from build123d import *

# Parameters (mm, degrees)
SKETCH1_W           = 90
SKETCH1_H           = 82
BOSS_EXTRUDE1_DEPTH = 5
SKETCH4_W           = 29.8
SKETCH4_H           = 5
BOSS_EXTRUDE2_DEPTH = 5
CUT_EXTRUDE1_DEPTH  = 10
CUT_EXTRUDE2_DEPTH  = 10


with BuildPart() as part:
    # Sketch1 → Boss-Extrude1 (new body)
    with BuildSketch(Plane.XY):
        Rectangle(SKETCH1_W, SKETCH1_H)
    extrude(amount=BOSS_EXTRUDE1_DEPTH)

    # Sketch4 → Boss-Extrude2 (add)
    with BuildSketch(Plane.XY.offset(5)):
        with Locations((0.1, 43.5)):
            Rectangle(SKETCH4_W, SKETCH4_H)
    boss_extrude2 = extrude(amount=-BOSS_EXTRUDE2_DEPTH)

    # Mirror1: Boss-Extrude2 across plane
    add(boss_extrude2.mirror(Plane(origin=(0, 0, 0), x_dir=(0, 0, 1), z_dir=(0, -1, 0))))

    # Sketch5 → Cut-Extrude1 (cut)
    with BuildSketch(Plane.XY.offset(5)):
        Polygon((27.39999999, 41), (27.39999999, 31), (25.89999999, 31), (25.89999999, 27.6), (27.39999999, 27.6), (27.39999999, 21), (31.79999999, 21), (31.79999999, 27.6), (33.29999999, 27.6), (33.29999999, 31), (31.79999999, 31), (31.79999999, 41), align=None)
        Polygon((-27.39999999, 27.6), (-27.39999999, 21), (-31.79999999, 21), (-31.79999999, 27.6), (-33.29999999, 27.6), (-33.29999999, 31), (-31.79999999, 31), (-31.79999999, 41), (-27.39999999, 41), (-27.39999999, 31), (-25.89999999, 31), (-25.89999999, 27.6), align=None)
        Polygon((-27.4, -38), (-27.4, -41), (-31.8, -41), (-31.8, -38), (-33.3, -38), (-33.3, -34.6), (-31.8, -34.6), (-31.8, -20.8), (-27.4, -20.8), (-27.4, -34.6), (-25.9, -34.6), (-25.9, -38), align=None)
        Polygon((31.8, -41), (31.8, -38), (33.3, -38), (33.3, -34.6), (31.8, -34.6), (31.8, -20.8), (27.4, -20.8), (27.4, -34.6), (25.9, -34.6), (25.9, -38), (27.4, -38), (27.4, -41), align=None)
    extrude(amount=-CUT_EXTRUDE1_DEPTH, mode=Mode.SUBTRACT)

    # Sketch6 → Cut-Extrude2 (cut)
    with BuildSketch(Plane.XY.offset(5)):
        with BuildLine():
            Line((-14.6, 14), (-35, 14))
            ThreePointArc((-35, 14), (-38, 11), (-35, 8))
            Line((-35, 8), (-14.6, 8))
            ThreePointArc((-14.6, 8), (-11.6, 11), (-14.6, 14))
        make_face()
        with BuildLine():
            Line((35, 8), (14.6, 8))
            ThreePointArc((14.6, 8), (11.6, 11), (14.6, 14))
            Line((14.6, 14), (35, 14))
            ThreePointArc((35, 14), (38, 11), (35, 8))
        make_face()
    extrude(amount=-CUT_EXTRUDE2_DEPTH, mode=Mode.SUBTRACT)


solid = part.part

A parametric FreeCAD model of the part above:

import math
import FreeCAD as App
import Part
import Sketcher

V = App.Vector

doc = App.newDocument("Part")
params = doc.addObject("Spreadsheet::Sheet", "Params")
for row, (alias, value) in enumerate([
    ("sketch1_width", "90 mm"),
    ("sketch1_height", "82 mm"),
    ("pad1_length", "5 mm"),
    ("sketch2_height", "5 mm"),
    ("sketch2_width", "29.8 mm"),
    ("pad2_length", "5 mm"),
    ("sketch3_height", "10 mm"),
    ("sketch3_height2", "3 mm"),
    ("sketch3_width", "1.5 mm"),
    ("sketch3_width2", "4.4 mm"),
    ("sketch3_height3", "3.4 mm"),
    ("pocket1_length", "10 mm"),
    ("sketch4_radius", "3 mm"),
    ("sketch4_width", "20.4 mm"),
    ("pocket2_length", "10 mm"),
], start=1):
    params.set(f"A{row}", alias)
    params.set(f"B{row}", "=" + value)
    params.setAlias(f"B{row}", alias)

body = doc.addObject("PartDesign::Body", "Body")

# Sketch on XY plane
sketch1 = body.newObject("Sketcher::SketchObject", "Sketch")
sketch1.AttachmentSupport = (doc.getObject("XY_Plane"), [""])
sketch1.MapMode = "FlatFace"
sketch1.addGeometry(Part.LineSegment(V(-45, 41, 0), V(-45, -41, 0)), False)
sketch1.addGeometry(Part.LineSegment(V(-45, -41, 0), V(45, -41, 0)), False)
sketch1.addGeometry(Part.LineSegment(V(45, -41, 0), V(45, 41, 0)), False)
sketch1.addGeometry(Part.LineSegment(V(45, 41, 0), V(-45, 41, 0)), False)
sketch1.addConstraint(Sketcher.Constraint("Coincident", 0, 2, 1, 1))
sketch1.addConstraint(Sketcher.Constraint("Coincident", 1, 2, 2, 1))
sketch1.addConstraint(Sketcher.Constraint("Coincident", 2, 2, 3, 1))
sketch1.addConstraint(Sketcher.Constraint("Coincident", 3, 2, 0, 1))
sketch1.addConstraint(Sketcher.Constraint("Vertical", 0))
sketch1.addConstraint(Sketcher.Constraint("Horizontal", 1))
sketch1.addConstraint(Sketcher.Constraint("Vertical", 2))
sketch1.addConstraint(Sketcher.Constraint("Horizontal", 3))
sketch1.addConstraint(Sketcher.Constraint("Symmetric", 0, 2, 2, 2, -1, 1))
sketch1.addConstraint(Sketcher.Constraint("DistanceX", 1, 1, 1, 2, 90.0))
sketch1.addConstraint(Sketcher.Constraint("DistanceY", 0, 2, 0, 1, 82.0))
sketch1.setExpression("Constraints[9]", "Params.sketch1_width")
sketch1.setExpression("Constraints[10]", "Params.sketch1_height")
pad1 = body.newObject("PartDesign::Pad", "Pad")
pad1.Profile = sketch1
pad1.setExpression("Length", "Params.pad1_length")

# Sketch on XY plane
sketch2 = body.newObject("Sketcher::SketchObject", "Sketch001")
sketch2.AttachmentSupport = (doc.getObject("XY_Plane"), [""])
sketch2.MapMode = "FlatFace"
sketch2.AttachmentOffset = App.Placement(V(0, 0, 5), App.Rotation())
sketch2.addGeometry(Part.LineSegment(V(-15, 46, 0), V(-15, 41, 0)), False)
sketch2.addGeometry(Part.LineSegment(V(-15, 41, 0), V(15, 41, 0)), False)
sketch2.addGeometry(Part.LineSegment(V(15, 41, 0), V(15, 46, 0)), False)
sketch2.addGeometry(Part.LineSegment(V(15, 46, 0), V(-15, 46, 0)), False)
sketch2.addConstraint(Sketcher.Constraint("Coincident", 0, 2, 1, 1))
sketch2.addConstraint(Sketcher.Constraint("Coincident", 1, 2, 2, 1))
sketch2.addConstraint(Sketcher.Constraint("Coincident", 2, 2, 3, 1))
sketch2.addConstraint(Sketcher.Constraint("Coincident", 3, 2, 0, 1))
sketch2.addConstraint(Sketcher.Constraint("Vertical", 0))
sketch2.addConstraint(Sketcher.Constraint("Horizontal", 1))
sketch2.addConstraint(Sketcher.Constraint("Vertical", 2))
sketch2.addConstraint(Sketcher.Constraint("Horizontal", 3))
sketch2.addConstraint(Sketcher.Constraint("DistanceY", 0, 2, 0, 1, 5.0))
sketch2.addConstraint(Sketcher.Constraint("DistanceX", 1, 1, 1, 2, 29.8))
sketch2.addConstraint(Sketcher.Constraint("DistanceY", -1, 1, 0, 2, 41.0))
sketch2.addConstraint(Sketcher.Constraint("DistanceX", -1, 1, 1, 2, 15.0))
sketch2.setExpression("Constraints[8]", "Params.sketch2_height")
sketch2.setExpression("Constraints[9]", "Params.sketch2_width")
pad2 = body.newObject("PartDesign::Pad", "Pad001")
pad2.Profile = sketch2
pad2.setExpression("Length", "Params.pad2_length")
pad2.Reversed = True
doc.recompute()

mirrored = body.newObject("PartDesign::Mirrored", "Mirrored")
mirrored.Originals = [pad2]
mirrored.MirrorPlane = (doc.getObject("XZ_Plane"), [""])
body.Tip = mirrored

# Sketch on XY plane
sketch3 = body.newObject("Sketcher::SketchObject", "Sketch002")
sketch3.AttachmentSupport = (doc.getObject("XY_Plane"), [""])
sketch3.MapMode = "FlatFace"
sketch3.AttachmentOffset = App.Placement(V(0, 0, 5), App.Rotation())
sketch3.addGeometry(Part.LineSegment(V(27.4, 41, 0), V(27.4, 31, 0)), False)
sketch3.addGeometry(Part.LineSegment(V(27.4, 31, 0), V(25.9, 31, 0)), False)
sketch3.addGeometry(Part.LineSegment(V(25.9, 31, 0), V(25.9, 27.6, 0)), False)
sketch3.addGeometry(Part.LineSegment(V(25.9, 27.6, 0), V(27.4, 27.6, 0)), False)
sketch3.addGeometry(Part.LineSegment(V(27.4, 27.6, 0), V(27.4, 21, 0)), False)
sketch3.addGeometry(Part.LineSegment(V(27.4, 21, 0), V(31.8, 21, 0)), False)
sketch3.addGeometry(Part.LineSegment(V(31.8, 21, 0), V(31.8, 27.6, 0)), False)
sketch3.addGeometry(Part.LineSegment(V(31.8, 27.6, 0), V(33.3, 27.6, 0)), False)
sketch3.addGeometry(Part.LineSegment(V(33.3, 27.6, 0), V(33.3, 31, 0)), False)
sketch3.addGeometry(Part.LineSegment(V(33.3, 31, 0), V(31.8, 31, 0)), False)
sketch3.addGeometry(Part.LineSegment(V(31.8, 31, 0), V(31.8, 41, 0)), False)
sketch3.addGeometry(Part.LineSegment(V(31.8, 41, 0), V(27.4, 41, 0)), False)
sketch3.addGeometry(Part.LineSegment(V(-27.4, 21, 0), V(-27.4, 27.6, 0)), False)
sketch3.addGeometry(Part.LineSegment(V(-27.4, 27.6, 0), V(-25.9, 27.6, 0)), False)
sketch3.addGeometry(Part.LineSegment(V(-25.9, 27.6, 0), V(-25.9, 31, 0)), False)
sketch3.addGeometry(Part.LineSegment(V(-25.9, 31, 0), V(-27.4, 31, 0)), False)
sketch3.addGeometry(Part.LineSegment(V(-27.4, 31, 0), V(-27.4, 41, 0)), False)
sketch3.addGeometry(Part.LineSegment(V(-27.4, 41, 0), V(-31.8, 41, 0)), False)
sketch3.addGeometry(Part.LineSegment(V(-31.8, 41, 0), V(-31.8, 31, 0)), False)
sketch3.addGeometry(Part.LineSegment(V(-31.8, 31, 0), V(-33.3, 31, 0)), False)
sketch3.addGeometry(Part.LineSegment(V(-33.3, 31, 0), V(-33.3, 27.6, 0)), False)
sketch3.addGeometry(Part.LineSegment(V(-33.3, 27.6, 0), V(-31.8, 27.6, 0)), False)
sketch3.addGeometry(Part.LineSegment(V(-31.8, 27.6, 0), V(-31.8, 21, 0)), False)
sketch3.addGeometry(Part.LineSegment(V(-31.8, 21, 0), V(-27.4, 21, 0)), False)
sketch3.addGeometry(Part.LineSegment(V(-27.4, -41, 0), V(-27.4, -38, 0)), False)
sketch3.addGeometry(Part.LineSegment(V(-27.4, -38, 0), V(-25.9, -38, 0)), False)
sketch3.addGeometry(Part.LineSegment(V(-25.9, -38, 0), V(-25.9, -34.6, 0)), False)
sketch3.addGeometry(Part.LineSegment(V(-25.9, -34.6, 0), V(-27.4, -34.6, 0)), False)
sketch3.addGeometry(Part.LineSegment(V(-27.4, -34.6, 0), V(-27.4, -20.8, 0)), False)
sketch3.addGeometry(Part.LineSegment(V(-27.4, -20.8, 0), V(-31.8, -20.8, 0)), False)
sketch3.addGeometry(Part.LineSegment(V(-31.8, -20.8, 0), V(-31.8, -34.6, 0)), False)
sketch3.addGeometry(Part.LineSegment(V(-31.8, -34.6, 0), V(-33.3, -34.6, 0)), False)
sketch3.addGeometry(Part.LineSegment(V(-33.3, -34.6, 0), V(-33.3, -38, 0)), False)
sketch3.addGeometry(Part.LineSegment(V(-33.3, -38, 0), V(-31.8, -38, 0)), False)
sketch3.addGeometry(Part.LineSegment(V(-31.8, -38, 0), V(-31.8, -41, 0)), False)
sketch3.addGeometry(Part.LineSegment(V(-31.8, -41, 0), V(-27.4, -41, 0)), False)
sketch3.addGeometry(Part.LineSegment(V(31.8, -41, 0), V(31.8, -38, 0)), False)
sketch3.addGeometry(Part.LineSegment(V(31.8, -38, 0), V(33.3, -38, 0)), False)
sketch3.addGeometry(Part.LineSegment(V(33.3, -38, 0), V(33.3, -34.6, 0)), False)
sketch3.addGeometry(Part.LineSegment(V(33.3, -34.6, 0), V(31.8, -34.6, 0)), False)
sketch3.addGeometry(Part.LineSegment(V(31.8, -34.6, 0), V(31.8, -20.8, 0)), False)
sketch3.addGeometry(Part.LineSegment(V(31.8, -20.8, 0), V(27.4, -20.8, 0)), False)
sketch3.addGeometry(Part.LineSegment(V(27.4, -20.8, 0), V(27.4, -34.6, 0)), False)
sketch3.addGeometry(Part.LineSegment(V(27.4, -34.6, 0), V(25.9, -34.6, 0)), False)
sketch3.addGeometry(Part.LineSegment(V(25.9, -34.6, 0), V(25.9, -38, 0)), False)
sketch3.addGeometry(Part.LineSegment(V(25.9, -38, 0), V(27.4, -38, 0)), False)
sketch3.addGeometry(Part.LineSegment(V(27.4, -38, 0), V(27.4, -41, 0)), False)
sketch3.addGeometry(Part.LineSegment(V(27.4, -41, 0), V(31.8, -41, 0)), False)
sketch3.addConstraint(Sketcher.Constraint("Coincident", 0, 2, 1, 1))
sketch3.addConstraint(Sketcher.Constraint("Coincident", 1, 2, 2, 1))
sketch3.addConstraint(Sketcher.Constraint("Coincident", 2, 2, 3, 1))
sketch3.addConstraint(Sketcher.Constraint("Coincident", 3, 2, 4, 1))
sketch3.addConstraint(Sketcher.Constraint("Coincident", 4, 2, 5, 1))
sketch3.addConstraint(Sketcher.Constraint("Coincident", 5, 2, 6, 1))
sketch3.addConstraint(Sketcher.Constraint("Coincident", 6, 2, 7, 1))
sketch3.addConstraint(Sketcher.Constraint("Coincident", 7, 2, 8, 1))
sketch3.addConstraint(Sketcher.Constraint("Coincident", 8, 2, 9, 1))
sketch3.addConstraint(Sketcher.Constraint("Coincident", 9, 2, 10, 1))
sketch3.addConstraint(Sketcher.Constraint("Coincident", 10, 2, 11, 1))
sketch3.addConstraint(Sketcher.Constraint("Coincident", 11, 2, 0, 1))
sketch3.addConstraint(Sketcher.Constraint("Coincident", 12, 2, 13, 1))
sketch3.addConstraint(Sketcher.Constraint("Coincident", 13, 2, 14, 1))
sketch3.addConstraint(Sketcher.Constraint("Coincident", 14, 2, 15, 1))
sketch3.addConstraint(Sketcher.Constraint("Coincident", 15, 2, 16, 1))
sketch3.addConstraint(Sketcher.Constraint("Coincident", 16, 2, 17, 1))
sketch3.addConstraint(Sketcher.Constraint("Coincident", 17, 2, 18, 1))
sketch3.addConstraint(Sketcher.Constraint("Coincident", 18, 2, 19, 1))
sketch3.addConstraint(Sketcher.Constraint("Coincident", 19, 2, 20, 1))
sketch3.addConstraint(Sketcher.Constraint("Coincident", 20, 2, 21, 1))
sketch3.addConstraint(Sketcher.Constraint("Coincident", 21, 2, 22, 1))
sketch3.addConstraint(Sketcher.Constraint("Coincident", 22, 2, 23, 1))
sketch3.addConstraint(Sketcher.Constraint("Coincident", 23, 2, 12, 1))
sketch3.addConstraint(Sketcher.Constraint("Coincident", 24, 2, 25, 1))
sketch3.addConstraint(Sketcher.Constraint("Coincident", 25, 2, 26, 1))
sketch3.addConstraint(Sketcher.Constraint("Coincident", 26, 2, 27, 1))
sketch3.addConstraint(Sketcher.Constraint("Coincident", 27, 2, 28, 1))
sketch3.addConstraint(Sketcher.Constraint("Coincident", 28, 2, 29, 1))
sketch3.addConstraint(Sketcher.Constraint("Coincident", 29, 2, 30, 1))
sketch3.addConstraint(Sketcher.Constraint("Coincident", 30, 2, 31, 1))
sketch3.addConstraint(Sketcher.Constraint("Coincident", 31, 2, 32, 1))
sketch3.addConstraint(Sketcher.Constraint("Coincident", 32, 2, 33, 1))
sketch3.addConstraint(Sketcher.Constraint("Coincident", 33, 2, 34, 1))
sketch3.addConstraint(Sketcher.Constraint("Coincident", 34, 2, 35, 1))
sketch3.addConstraint(Sketcher.Constraint("Coincident", 35, 2, 24, 1))
sketch3.addConstraint(Sketcher.Constraint("Coincident", 36, 2, 37, 1))
sketch3.addConstraint(Sketcher.Constraint("Coincident", 37, 2, 38, 1))
sketch3.addConstraint(Sketcher.Constraint("Coincident", 38, 2, 39, 1))
sketch3.addConstraint(Sketcher.Constraint("Coincident", 39, 2, 40, 1))
sketch3.addConstraint(Sketcher.Constraint("Coincident", 40, 2, 41, 1))
sketch3.addConstraint(Sketcher.Constraint("Coincident", 41, 2, 42, 1))
sketch3.addConstraint(Sketcher.Constraint("Coincident", 42, 2, 43, 1))
sketch3.addConstraint(Sketcher.Constraint("Coincident", 43, 2, 44, 1))
sketch3.addConstraint(Sketcher.Constraint("Coincident", 44, 2, 45, 1))
sketch3.addConstraint(Sketcher.Constraint("Coincident", 45, 2, 46, 1))
sketch3.addConstraint(Sketcher.Constraint("Coincident", 46, 2, 47, 1))
sketch3.addConstraint(Sketcher.Constraint("Coincident", 47, 2, 36, 1))
sketch3.addConstraint(Sketcher.Constraint("Vertical", 0))
sketch3.addConstraint(Sketcher.Constraint("Horizontal", 1))
sketch3.addConstraint(Sketcher.Constraint("Vertical", 2))
sketch3.addConstraint(Sketcher.Constraint("Horizontal", 3))
sketch3.addConstraint(Sketcher.Constraint("Vertical", 4))
sketch3.addConstraint(Sketcher.Constraint("Horizontal", 5))
sketch3.addConstraint(Sketcher.Constraint("Vertical", 6))
sketch3.addConstraint(Sketcher.Constraint("Horizontal", 7))
sketch3.addConstraint(Sketcher.Constraint("Vertical", 8))
sketch3.addConstraint(Sketcher.Constraint("Horizontal", 9))
sketch3.addConstraint(Sketcher.Constraint("Vertical", 10))
sketch3.addConstraint(Sketcher.Constraint("Horizontal", 11))
sketch3.addConstraint(Sketcher.Constraint("Vertical", 12))
sketch3.addConstraint(Sketcher.Constraint("Horizontal", 13))
sketch3.addConstraint(Sketcher.Constraint("Vertical", 14))
sketch3.addConstraint(Sketcher.Constraint("Horizontal", 15))
sketch3.addConstraint(Sketcher.Constraint("Vertical", 16))
sketch3.addConstraint(Sketcher.Constraint("Horizontal", 17))
sketch3.addConstraint(Sketcher.Constraint("Vertical", 18))
sketch3.addConstraint(Sketcher.Constraint("Horizontal", 19))
sketch3.addConstraint(Sketcher.Constraint("Vertical", 20))
sketch3.addConstraint(Sketcher.Constraint("Horizontal", 21))
sketch3.addConstraint(Sketcher.Constraint("Vertical", 22))
sketch3.addConstraint(Sketcher.Constraint("Horizontal", 23))
sketch3.addConstraint(Sketcher.Constraint("Vertical", 24))
sketch3.addConstraint(Sketcher.Constraint("Horizontal", 25))
sketch3.addConstraint(Sketcher.Constraint("Vertical", 26))
sketch3.addConstraint(Sketcher.Constraint("Horizontal", 27))
sketch3.addConstraint(Sketcher.Constraint("Vertical", 28))
sketch3.addConstraint(Sketcher.Constraint("Horizontal", 29))
sketch3.addConstraint(Sketcher.Constraint("Vertical", 30))
sketch3.addConstraint(Sketcher.Constraint("Horizontal", 31))
sketch3.addConstraint(Sketcher.Constraint("Vertical", 32))
sketch3.addConstraint(Sketcher.Constraint("Horizontal", 33))
sketch3.addConstraint(Sketcher.Constraint("Vertical", 34))
sketch3.addConstraint(Sketcher.Constraint("Horizontal", 35))
sketch3.addConstraint(Sketcher.Constraint("Vertical", 36))
sketch3.addConstraint(Sketcher.Constraint("Horizontal", 37))
sketch3.addConstraint(Sketcher.Constraint("Vertical", 38))
sketch3.addConstraint(Sketcher.Constraint("Horizontal", 39))
sketch3.addConstraint(Sketcher.Constraint("Vertical", 40))
sketch3.addConstraint(Sketcher.Constraint("Horizontal", 41))
sketch3.addConstraint(Sketcher.Constraint("Vertical", 42))
sketch3.addConstraint(Sketcher.Constraint("Horizontal", 43))
sketch3.addConstraint(Sketcher.Constraint("Vertical", 44))
sketch3.addConstraint(Sketcher.Constraint("Horizontal", 45))
sketch3.addConstraint(Sketcher.Constraint("Vertical", 46))
sketch3.addConstraint(Sketcher.Constraint("Horizontal", 47))
sketch3.addConstraint(Sketcher.Constraint("Symmetric", 10, 2, 34, 2, -1, 1))
sketch3.addConstraint(Sketcher.Constraint("Symmetric", 16, 2, 46, 2, -1, 1))
sketch3.addConstraint(Sketcher.Constraint("Symmetric", 3, 2, 12, 2, -2))
sketch3.addConstraint(Sketcher.Constraint("Symmetric", 1, 2, 14, 2, -2))
sketch3.addConstraint(Sketcher.Constraint("Symmetric", 11, 2, 16, 2, -2))
sketch3.addConstraint(Sketcher.Constraint("Symmetric", 9, 2, 18, 2, -2))
sketch3.addConstraint(Sketcher.Constraint("Symmetric", 7, 2, 20, 2, -2))
sketch3.addConstraint(Sketcher.Constraint("Symmetric", 5, 2, 22, 2, -2))
sketch3.addConstraint(Sketcher.Constraint("Symmetric", 33, 2, 36, 2, -2))
sketch3.addConstraint(Sketcher.Constraint("Symmetric", 31, 2, 38, 2, -2))
sketch3.addConstraint(Sketcher.Constraint("Symmetric", 29, 2, 40, 2, -2))
sketch3.addConstraint(Sketcher.Constraint("Symmetric", 27, 2, 42, 2, -2))
sketch3.addConstraint(Sketcher.Constraint("Symmetric", 25, 2, 44, 2, -2))
sketch3.addConstraint(Sketcher.Constraint("Horizontal", 3, 2, 6, 2))
sketch3.addConstraint(Sketcher.Constraint("Horizontal", 1, 2, 8, 2))
sketch3.addConstraint(Sketcher.Constraint("Horizontal", 27, 2, 30, 2))
sketch3.addConstraint(Sketcher.Constraint("Horizontal", 25, 2, 32, 2))
sketch3.addConstraint(Sketcher.Constraint("Vertical", 0, 2, 3, 2))
sketch3.addConstraint(Sketcher.Constraint("Vertical", 6, 2, 9, 2))
sketch3.addConstraint(Sketcher.Constraint("Vertical", 23, 2, 24, 2))
sketch3.addConstraint(Sketcher.Constraint("Vertical", 14, 2, 25, 2))
sketch3.addConstraint(Sketcher.Constraint("Vertical", 24, 2, 27, 2))
sketch3.addConstraint(Sketcher.Constraint("Vertical", 22, 2, 29, 2))
sketch3.addConstraint(Sketcher.Constraint("Vertical", 20, 2, 31, 2))
sketch3.addConstraint(Sketcher.Constraint("Equal", 3, 7))
sketch3.addConstraint(Sketcher.Constraint("Equal", 20, 26))
sketch3.addConstraint(Sketcher.Constraint("DistanceY", 0, 2, 0, 1, 10.0))
sketch3.addConstraint(Sketcher.Constraint("DistanceY", 24, 1, 24, 2, 3.0))
sketch3.addConstraint(Sketcher.Constraint("DistanceX", 1, 2, 1, 1, 1.5))
sketch3.addConstraint(Sketcher.Constraint("DistanceX", 5, 1, 5, 2, 4.4))
sketch3.addConstraint(Sketcher.Constraint("DistanceY", 2, 2, 2, 1, 3.4))
sketch3.addConstraint(Sketcher.Constraint("DistanceY", 4, 2, 4, 1, 6.6))
sketch3.addConstraint(Sketcher.Constraint("DistanceY", 28, 1, 28, 2, 13.8))
sketch3.addConstraint(Sketcher.Constraint("DistanceY", -1, 1, 0, 2, 31.0))
sketch3.addConstraint(Sketcher.Constraint("DistanceX", -1, 1, 0, 2, 27.4))
sketch3.setExpression("Constraints[122]", "Params.sketch3_height")
sketch3.setExpression("Constraints[123]", "Params.sketch3_height2")
sketch3.setExpression("Constraints[124]", "Params.sketch3_width")
sketch3.setExpression("Constraints[125]", "Params.sketch3_width2")
sketch3.setExpression("Constraints[126]", "Params.sketch3_height3")
pocket1 = body.newObject("PartDesign::Pocket", "Pocket")
pocket1.Profile = sketch3
pocket1.setExpression("Length", "Params.pocket1_length")

# Sketch on XY plane
sketch4 = body.newObject("Sketcher::SketchObject", "Sketch003")
sketch4.AttachmentSupport = (doc.getObject("XY_Plane"), [""])
sketch4.MapMode = "FlatFace"
sketch4.AttachmentOffset = App.Placement(V(0, 0, 5), App.Rotation())
sketch4.addGeometry(Part.LineSegment(V(-14.6, 14, 0), V(-35, 14, 0)), False)
sketch4.addGeometry(Part.ArcOfCircle(Part.Circle(V(-35, 11, 0), V(0, 0, 1), 3), math.radians(90), math.radians(270)), False)
sketch4.addGeometry(Part.LineSegment(V(-35, 8, 0), V(-14.6, 8, 0)), False)
sketch4.addGeometry(Part.ArcOfCircle(Part.Circle(V(-14.6, 11, 0), V(0, 0, 1), 3), math.radians(-90), math.radians(90)), False)
sketch4.addGeometry(Part.LineSegment(V(14.6, 8, 0), V(35, 8, 0)), False)
sketch4.addGeometry(Part.ArcOfCircle(Part.Circle(V(35, 11, 0), V(0, 0, 1), 3), math.radians(-90), math.radians(90)), False)
sketch4.addGeometry(Part.LineSegment(V(35, 14, 0), V(14.6, 14, 0)), False)
sketch4.addGeometry(Part.ArcOfCircle(Part.Circle(V(14.6, 11, 0), V(0, 0, 1), 3), math.radians(90), math.radians(270)), False)
sketch4.addConstraint(Sketcher.Constraint("Tangent", 0, 2, 1, 1))
sketch4.addConstraint(Sketcher.Constraint("Tangent", 1, 2, 2, 1))
sketch4.addConstraint(Sketcher.Constraint("Tangent", 2, 2, 3, 1))
sketch4.addConstraint(Sketcher.Constraint("Tangent", 3, 2, 0, 1))
sketch4.addConstraint(Sketcher.Constraint("Tangent", 4, 2, 5, 1))
sketch4.addConstraint(Sketcher.Constraint("Tangent", 5, 2, 6, 1))
sketch4.addConstraint(Sketcher.Constraint("Tangent", 6, 2, 7, 1))
sketch4.addConstraint(Sketcher.Constraint("Tangent", 7, 2, 4, 1))
sketch4.addConstraint(Sketcher.Constraint("Horizontal", 0))
sketch4.addConstraint(Sketcher.Constraint("Horizontal", 2))
sketch4.addConstraint(Sketcher.Constraint("Horizontal", 4))
sketch4.addConstraint(Sketcher.Constraint("Horizontal", 6))
sketch4.addConstraint(Sketcher.Constraint("Equal", 3, 5))
sketch4.addConstraint(Sketcher.Constraint("Symmetric", 1, 3, 5, 3, -2))
sketch4.addConstraint(Sketcher.Constraint("Equal", 2, 4))
sketch4.addConstraint(Sketcher.Constraint("Radius", 1, 3.0))
sketch4.addConstraint(Sketcher.Constraint("DistanceX", 0, 2, 0, 1, 20.4))
sketch4.addConstraint(Sketcher.Constraint("DistanceX", 1, 3, -1, 1, 35.0))
sketch4.addConstraint(Sketcher.Constraint("DistanceY", -1, 1, 1, 3, 11.0))
sketch4.setExpression("Constraints[15]", "Params.sketch4_radius")
sketch4.setExpression("Constraints[16]", "Params.sketch4_width")
pocket2 = body.newObject("PartDesign::Pocket", "Pocket001")
pocket2.Profile = sketch4
pocket2.setExpression("Length", "Params.pocket2_length")

doc.recompute()
